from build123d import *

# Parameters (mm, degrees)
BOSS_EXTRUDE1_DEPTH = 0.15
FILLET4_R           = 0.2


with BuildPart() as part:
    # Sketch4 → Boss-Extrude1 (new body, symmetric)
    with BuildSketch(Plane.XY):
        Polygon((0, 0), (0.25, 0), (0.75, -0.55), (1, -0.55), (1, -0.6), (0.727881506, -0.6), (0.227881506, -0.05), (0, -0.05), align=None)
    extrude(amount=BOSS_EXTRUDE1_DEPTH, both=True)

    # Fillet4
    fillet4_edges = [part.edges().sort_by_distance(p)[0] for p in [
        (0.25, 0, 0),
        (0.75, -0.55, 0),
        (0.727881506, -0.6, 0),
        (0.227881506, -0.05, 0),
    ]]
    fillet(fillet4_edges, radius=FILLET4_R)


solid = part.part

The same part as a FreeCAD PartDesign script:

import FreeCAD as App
import Part
import Sketcher


def edges_at(feature, points):
    """Names of the edges that pass closest to the given points."""
    edges = feature.Shape.Edges
    near = lambda p: min(range(len(edges)), key=lambda i: edges[i].distToShape(Part.Vertex(*p))[0])
    return sorted({f"Edge{near(p) + 1}" for p in points})


def add_polygon(sketch, points):
    """Adds a closed chain of lines whose ends are joined by coincident constraints."""
    first, n = sketch.GeometryCount, len(points)
    for a, b in zip(points, points[1:] + points[:1]):
        sketch.addGeometry(Part.LineSegment(App.Vector(*a, 0), App.Vector(*b, 0)), False)
    for i in range(n):
        sketch.addConstraint(Sketcher.Constraint("Coincident", first + i, 2, first + (i + 1) % n, 1))

doc = App.newDocument("Part")
body = doc.addObject("PartDesign::Body", "Body")

# Sketch on XY plane
sketch1 = body.newObject("Sketcher::SketchObject", "Sketch")
sketch1.AttachmentSupport = (doc.getObject("XY_Plane"), [""])
sketch1.MapMode = "FlatFace"
add_polygon(sketch1, [(0.25, 0), (0, 0), (0, -0.05), (0.228, -0.05), (0.728, -0.6), (1, -0.6), (1, -0.55), (0.75, -0.55)])  # lines 0-7
sketch1.addConstraint([
    Sketcher.Constraint("Horizontal", 0),
    Sketcher.Constraint("Vertical", 1),
    Sketcher.Constraint("Horizontal", 2),
    Sketcher.Constraint("Horizontal", 4),
    Sketcher.Constraint("Vertical", 5),
    Sketcher.Constraint("Horizontal", 6),
    Sketcher.Constraint("Coincident", 0, 2, -1, 1),
    Sketcher.Constraint("Parallel", 3, 7),
    Sketcher.Constraint("Equal", 0, 6),
    Sketcher.Constraint("Equal", 1, 5),
    Sketcher.Constraint("DistanceX", -1, 1, 4, 2, 1.0),
    Sketcher.Constraint("DistanceX", 0, 2, 0, 1, 0.25),
    Sketcher.Constraint("DistanceY", 1, 2, 1, 1, 0.05),
    Sketcher.Constraint("DistanceY", 3, 2, -1, 1, 0.6),
    Sketcher.Constraint("DistanceX", 2, 1, 2, 2, 0.227882),
])
pad1 = body.newObject("PartDesign::Pad", "Pad")
pad1.Profile = sketch1
pad1.Length = 0.3
pad1.Midplane = True
doc.recompute()

fillet = body.newObject("PartDesign::Fillet", "Fillet")
fillet.Base = (pad1, edges_at(pad1, [
    (0.25, 0, 0),
    (0.75, -0.55, 0),
    (0.728, -0.6, 0),
    (0.228, -0.05, 0),
]))
fillet.Radius = 0.2

doc.recompute()
